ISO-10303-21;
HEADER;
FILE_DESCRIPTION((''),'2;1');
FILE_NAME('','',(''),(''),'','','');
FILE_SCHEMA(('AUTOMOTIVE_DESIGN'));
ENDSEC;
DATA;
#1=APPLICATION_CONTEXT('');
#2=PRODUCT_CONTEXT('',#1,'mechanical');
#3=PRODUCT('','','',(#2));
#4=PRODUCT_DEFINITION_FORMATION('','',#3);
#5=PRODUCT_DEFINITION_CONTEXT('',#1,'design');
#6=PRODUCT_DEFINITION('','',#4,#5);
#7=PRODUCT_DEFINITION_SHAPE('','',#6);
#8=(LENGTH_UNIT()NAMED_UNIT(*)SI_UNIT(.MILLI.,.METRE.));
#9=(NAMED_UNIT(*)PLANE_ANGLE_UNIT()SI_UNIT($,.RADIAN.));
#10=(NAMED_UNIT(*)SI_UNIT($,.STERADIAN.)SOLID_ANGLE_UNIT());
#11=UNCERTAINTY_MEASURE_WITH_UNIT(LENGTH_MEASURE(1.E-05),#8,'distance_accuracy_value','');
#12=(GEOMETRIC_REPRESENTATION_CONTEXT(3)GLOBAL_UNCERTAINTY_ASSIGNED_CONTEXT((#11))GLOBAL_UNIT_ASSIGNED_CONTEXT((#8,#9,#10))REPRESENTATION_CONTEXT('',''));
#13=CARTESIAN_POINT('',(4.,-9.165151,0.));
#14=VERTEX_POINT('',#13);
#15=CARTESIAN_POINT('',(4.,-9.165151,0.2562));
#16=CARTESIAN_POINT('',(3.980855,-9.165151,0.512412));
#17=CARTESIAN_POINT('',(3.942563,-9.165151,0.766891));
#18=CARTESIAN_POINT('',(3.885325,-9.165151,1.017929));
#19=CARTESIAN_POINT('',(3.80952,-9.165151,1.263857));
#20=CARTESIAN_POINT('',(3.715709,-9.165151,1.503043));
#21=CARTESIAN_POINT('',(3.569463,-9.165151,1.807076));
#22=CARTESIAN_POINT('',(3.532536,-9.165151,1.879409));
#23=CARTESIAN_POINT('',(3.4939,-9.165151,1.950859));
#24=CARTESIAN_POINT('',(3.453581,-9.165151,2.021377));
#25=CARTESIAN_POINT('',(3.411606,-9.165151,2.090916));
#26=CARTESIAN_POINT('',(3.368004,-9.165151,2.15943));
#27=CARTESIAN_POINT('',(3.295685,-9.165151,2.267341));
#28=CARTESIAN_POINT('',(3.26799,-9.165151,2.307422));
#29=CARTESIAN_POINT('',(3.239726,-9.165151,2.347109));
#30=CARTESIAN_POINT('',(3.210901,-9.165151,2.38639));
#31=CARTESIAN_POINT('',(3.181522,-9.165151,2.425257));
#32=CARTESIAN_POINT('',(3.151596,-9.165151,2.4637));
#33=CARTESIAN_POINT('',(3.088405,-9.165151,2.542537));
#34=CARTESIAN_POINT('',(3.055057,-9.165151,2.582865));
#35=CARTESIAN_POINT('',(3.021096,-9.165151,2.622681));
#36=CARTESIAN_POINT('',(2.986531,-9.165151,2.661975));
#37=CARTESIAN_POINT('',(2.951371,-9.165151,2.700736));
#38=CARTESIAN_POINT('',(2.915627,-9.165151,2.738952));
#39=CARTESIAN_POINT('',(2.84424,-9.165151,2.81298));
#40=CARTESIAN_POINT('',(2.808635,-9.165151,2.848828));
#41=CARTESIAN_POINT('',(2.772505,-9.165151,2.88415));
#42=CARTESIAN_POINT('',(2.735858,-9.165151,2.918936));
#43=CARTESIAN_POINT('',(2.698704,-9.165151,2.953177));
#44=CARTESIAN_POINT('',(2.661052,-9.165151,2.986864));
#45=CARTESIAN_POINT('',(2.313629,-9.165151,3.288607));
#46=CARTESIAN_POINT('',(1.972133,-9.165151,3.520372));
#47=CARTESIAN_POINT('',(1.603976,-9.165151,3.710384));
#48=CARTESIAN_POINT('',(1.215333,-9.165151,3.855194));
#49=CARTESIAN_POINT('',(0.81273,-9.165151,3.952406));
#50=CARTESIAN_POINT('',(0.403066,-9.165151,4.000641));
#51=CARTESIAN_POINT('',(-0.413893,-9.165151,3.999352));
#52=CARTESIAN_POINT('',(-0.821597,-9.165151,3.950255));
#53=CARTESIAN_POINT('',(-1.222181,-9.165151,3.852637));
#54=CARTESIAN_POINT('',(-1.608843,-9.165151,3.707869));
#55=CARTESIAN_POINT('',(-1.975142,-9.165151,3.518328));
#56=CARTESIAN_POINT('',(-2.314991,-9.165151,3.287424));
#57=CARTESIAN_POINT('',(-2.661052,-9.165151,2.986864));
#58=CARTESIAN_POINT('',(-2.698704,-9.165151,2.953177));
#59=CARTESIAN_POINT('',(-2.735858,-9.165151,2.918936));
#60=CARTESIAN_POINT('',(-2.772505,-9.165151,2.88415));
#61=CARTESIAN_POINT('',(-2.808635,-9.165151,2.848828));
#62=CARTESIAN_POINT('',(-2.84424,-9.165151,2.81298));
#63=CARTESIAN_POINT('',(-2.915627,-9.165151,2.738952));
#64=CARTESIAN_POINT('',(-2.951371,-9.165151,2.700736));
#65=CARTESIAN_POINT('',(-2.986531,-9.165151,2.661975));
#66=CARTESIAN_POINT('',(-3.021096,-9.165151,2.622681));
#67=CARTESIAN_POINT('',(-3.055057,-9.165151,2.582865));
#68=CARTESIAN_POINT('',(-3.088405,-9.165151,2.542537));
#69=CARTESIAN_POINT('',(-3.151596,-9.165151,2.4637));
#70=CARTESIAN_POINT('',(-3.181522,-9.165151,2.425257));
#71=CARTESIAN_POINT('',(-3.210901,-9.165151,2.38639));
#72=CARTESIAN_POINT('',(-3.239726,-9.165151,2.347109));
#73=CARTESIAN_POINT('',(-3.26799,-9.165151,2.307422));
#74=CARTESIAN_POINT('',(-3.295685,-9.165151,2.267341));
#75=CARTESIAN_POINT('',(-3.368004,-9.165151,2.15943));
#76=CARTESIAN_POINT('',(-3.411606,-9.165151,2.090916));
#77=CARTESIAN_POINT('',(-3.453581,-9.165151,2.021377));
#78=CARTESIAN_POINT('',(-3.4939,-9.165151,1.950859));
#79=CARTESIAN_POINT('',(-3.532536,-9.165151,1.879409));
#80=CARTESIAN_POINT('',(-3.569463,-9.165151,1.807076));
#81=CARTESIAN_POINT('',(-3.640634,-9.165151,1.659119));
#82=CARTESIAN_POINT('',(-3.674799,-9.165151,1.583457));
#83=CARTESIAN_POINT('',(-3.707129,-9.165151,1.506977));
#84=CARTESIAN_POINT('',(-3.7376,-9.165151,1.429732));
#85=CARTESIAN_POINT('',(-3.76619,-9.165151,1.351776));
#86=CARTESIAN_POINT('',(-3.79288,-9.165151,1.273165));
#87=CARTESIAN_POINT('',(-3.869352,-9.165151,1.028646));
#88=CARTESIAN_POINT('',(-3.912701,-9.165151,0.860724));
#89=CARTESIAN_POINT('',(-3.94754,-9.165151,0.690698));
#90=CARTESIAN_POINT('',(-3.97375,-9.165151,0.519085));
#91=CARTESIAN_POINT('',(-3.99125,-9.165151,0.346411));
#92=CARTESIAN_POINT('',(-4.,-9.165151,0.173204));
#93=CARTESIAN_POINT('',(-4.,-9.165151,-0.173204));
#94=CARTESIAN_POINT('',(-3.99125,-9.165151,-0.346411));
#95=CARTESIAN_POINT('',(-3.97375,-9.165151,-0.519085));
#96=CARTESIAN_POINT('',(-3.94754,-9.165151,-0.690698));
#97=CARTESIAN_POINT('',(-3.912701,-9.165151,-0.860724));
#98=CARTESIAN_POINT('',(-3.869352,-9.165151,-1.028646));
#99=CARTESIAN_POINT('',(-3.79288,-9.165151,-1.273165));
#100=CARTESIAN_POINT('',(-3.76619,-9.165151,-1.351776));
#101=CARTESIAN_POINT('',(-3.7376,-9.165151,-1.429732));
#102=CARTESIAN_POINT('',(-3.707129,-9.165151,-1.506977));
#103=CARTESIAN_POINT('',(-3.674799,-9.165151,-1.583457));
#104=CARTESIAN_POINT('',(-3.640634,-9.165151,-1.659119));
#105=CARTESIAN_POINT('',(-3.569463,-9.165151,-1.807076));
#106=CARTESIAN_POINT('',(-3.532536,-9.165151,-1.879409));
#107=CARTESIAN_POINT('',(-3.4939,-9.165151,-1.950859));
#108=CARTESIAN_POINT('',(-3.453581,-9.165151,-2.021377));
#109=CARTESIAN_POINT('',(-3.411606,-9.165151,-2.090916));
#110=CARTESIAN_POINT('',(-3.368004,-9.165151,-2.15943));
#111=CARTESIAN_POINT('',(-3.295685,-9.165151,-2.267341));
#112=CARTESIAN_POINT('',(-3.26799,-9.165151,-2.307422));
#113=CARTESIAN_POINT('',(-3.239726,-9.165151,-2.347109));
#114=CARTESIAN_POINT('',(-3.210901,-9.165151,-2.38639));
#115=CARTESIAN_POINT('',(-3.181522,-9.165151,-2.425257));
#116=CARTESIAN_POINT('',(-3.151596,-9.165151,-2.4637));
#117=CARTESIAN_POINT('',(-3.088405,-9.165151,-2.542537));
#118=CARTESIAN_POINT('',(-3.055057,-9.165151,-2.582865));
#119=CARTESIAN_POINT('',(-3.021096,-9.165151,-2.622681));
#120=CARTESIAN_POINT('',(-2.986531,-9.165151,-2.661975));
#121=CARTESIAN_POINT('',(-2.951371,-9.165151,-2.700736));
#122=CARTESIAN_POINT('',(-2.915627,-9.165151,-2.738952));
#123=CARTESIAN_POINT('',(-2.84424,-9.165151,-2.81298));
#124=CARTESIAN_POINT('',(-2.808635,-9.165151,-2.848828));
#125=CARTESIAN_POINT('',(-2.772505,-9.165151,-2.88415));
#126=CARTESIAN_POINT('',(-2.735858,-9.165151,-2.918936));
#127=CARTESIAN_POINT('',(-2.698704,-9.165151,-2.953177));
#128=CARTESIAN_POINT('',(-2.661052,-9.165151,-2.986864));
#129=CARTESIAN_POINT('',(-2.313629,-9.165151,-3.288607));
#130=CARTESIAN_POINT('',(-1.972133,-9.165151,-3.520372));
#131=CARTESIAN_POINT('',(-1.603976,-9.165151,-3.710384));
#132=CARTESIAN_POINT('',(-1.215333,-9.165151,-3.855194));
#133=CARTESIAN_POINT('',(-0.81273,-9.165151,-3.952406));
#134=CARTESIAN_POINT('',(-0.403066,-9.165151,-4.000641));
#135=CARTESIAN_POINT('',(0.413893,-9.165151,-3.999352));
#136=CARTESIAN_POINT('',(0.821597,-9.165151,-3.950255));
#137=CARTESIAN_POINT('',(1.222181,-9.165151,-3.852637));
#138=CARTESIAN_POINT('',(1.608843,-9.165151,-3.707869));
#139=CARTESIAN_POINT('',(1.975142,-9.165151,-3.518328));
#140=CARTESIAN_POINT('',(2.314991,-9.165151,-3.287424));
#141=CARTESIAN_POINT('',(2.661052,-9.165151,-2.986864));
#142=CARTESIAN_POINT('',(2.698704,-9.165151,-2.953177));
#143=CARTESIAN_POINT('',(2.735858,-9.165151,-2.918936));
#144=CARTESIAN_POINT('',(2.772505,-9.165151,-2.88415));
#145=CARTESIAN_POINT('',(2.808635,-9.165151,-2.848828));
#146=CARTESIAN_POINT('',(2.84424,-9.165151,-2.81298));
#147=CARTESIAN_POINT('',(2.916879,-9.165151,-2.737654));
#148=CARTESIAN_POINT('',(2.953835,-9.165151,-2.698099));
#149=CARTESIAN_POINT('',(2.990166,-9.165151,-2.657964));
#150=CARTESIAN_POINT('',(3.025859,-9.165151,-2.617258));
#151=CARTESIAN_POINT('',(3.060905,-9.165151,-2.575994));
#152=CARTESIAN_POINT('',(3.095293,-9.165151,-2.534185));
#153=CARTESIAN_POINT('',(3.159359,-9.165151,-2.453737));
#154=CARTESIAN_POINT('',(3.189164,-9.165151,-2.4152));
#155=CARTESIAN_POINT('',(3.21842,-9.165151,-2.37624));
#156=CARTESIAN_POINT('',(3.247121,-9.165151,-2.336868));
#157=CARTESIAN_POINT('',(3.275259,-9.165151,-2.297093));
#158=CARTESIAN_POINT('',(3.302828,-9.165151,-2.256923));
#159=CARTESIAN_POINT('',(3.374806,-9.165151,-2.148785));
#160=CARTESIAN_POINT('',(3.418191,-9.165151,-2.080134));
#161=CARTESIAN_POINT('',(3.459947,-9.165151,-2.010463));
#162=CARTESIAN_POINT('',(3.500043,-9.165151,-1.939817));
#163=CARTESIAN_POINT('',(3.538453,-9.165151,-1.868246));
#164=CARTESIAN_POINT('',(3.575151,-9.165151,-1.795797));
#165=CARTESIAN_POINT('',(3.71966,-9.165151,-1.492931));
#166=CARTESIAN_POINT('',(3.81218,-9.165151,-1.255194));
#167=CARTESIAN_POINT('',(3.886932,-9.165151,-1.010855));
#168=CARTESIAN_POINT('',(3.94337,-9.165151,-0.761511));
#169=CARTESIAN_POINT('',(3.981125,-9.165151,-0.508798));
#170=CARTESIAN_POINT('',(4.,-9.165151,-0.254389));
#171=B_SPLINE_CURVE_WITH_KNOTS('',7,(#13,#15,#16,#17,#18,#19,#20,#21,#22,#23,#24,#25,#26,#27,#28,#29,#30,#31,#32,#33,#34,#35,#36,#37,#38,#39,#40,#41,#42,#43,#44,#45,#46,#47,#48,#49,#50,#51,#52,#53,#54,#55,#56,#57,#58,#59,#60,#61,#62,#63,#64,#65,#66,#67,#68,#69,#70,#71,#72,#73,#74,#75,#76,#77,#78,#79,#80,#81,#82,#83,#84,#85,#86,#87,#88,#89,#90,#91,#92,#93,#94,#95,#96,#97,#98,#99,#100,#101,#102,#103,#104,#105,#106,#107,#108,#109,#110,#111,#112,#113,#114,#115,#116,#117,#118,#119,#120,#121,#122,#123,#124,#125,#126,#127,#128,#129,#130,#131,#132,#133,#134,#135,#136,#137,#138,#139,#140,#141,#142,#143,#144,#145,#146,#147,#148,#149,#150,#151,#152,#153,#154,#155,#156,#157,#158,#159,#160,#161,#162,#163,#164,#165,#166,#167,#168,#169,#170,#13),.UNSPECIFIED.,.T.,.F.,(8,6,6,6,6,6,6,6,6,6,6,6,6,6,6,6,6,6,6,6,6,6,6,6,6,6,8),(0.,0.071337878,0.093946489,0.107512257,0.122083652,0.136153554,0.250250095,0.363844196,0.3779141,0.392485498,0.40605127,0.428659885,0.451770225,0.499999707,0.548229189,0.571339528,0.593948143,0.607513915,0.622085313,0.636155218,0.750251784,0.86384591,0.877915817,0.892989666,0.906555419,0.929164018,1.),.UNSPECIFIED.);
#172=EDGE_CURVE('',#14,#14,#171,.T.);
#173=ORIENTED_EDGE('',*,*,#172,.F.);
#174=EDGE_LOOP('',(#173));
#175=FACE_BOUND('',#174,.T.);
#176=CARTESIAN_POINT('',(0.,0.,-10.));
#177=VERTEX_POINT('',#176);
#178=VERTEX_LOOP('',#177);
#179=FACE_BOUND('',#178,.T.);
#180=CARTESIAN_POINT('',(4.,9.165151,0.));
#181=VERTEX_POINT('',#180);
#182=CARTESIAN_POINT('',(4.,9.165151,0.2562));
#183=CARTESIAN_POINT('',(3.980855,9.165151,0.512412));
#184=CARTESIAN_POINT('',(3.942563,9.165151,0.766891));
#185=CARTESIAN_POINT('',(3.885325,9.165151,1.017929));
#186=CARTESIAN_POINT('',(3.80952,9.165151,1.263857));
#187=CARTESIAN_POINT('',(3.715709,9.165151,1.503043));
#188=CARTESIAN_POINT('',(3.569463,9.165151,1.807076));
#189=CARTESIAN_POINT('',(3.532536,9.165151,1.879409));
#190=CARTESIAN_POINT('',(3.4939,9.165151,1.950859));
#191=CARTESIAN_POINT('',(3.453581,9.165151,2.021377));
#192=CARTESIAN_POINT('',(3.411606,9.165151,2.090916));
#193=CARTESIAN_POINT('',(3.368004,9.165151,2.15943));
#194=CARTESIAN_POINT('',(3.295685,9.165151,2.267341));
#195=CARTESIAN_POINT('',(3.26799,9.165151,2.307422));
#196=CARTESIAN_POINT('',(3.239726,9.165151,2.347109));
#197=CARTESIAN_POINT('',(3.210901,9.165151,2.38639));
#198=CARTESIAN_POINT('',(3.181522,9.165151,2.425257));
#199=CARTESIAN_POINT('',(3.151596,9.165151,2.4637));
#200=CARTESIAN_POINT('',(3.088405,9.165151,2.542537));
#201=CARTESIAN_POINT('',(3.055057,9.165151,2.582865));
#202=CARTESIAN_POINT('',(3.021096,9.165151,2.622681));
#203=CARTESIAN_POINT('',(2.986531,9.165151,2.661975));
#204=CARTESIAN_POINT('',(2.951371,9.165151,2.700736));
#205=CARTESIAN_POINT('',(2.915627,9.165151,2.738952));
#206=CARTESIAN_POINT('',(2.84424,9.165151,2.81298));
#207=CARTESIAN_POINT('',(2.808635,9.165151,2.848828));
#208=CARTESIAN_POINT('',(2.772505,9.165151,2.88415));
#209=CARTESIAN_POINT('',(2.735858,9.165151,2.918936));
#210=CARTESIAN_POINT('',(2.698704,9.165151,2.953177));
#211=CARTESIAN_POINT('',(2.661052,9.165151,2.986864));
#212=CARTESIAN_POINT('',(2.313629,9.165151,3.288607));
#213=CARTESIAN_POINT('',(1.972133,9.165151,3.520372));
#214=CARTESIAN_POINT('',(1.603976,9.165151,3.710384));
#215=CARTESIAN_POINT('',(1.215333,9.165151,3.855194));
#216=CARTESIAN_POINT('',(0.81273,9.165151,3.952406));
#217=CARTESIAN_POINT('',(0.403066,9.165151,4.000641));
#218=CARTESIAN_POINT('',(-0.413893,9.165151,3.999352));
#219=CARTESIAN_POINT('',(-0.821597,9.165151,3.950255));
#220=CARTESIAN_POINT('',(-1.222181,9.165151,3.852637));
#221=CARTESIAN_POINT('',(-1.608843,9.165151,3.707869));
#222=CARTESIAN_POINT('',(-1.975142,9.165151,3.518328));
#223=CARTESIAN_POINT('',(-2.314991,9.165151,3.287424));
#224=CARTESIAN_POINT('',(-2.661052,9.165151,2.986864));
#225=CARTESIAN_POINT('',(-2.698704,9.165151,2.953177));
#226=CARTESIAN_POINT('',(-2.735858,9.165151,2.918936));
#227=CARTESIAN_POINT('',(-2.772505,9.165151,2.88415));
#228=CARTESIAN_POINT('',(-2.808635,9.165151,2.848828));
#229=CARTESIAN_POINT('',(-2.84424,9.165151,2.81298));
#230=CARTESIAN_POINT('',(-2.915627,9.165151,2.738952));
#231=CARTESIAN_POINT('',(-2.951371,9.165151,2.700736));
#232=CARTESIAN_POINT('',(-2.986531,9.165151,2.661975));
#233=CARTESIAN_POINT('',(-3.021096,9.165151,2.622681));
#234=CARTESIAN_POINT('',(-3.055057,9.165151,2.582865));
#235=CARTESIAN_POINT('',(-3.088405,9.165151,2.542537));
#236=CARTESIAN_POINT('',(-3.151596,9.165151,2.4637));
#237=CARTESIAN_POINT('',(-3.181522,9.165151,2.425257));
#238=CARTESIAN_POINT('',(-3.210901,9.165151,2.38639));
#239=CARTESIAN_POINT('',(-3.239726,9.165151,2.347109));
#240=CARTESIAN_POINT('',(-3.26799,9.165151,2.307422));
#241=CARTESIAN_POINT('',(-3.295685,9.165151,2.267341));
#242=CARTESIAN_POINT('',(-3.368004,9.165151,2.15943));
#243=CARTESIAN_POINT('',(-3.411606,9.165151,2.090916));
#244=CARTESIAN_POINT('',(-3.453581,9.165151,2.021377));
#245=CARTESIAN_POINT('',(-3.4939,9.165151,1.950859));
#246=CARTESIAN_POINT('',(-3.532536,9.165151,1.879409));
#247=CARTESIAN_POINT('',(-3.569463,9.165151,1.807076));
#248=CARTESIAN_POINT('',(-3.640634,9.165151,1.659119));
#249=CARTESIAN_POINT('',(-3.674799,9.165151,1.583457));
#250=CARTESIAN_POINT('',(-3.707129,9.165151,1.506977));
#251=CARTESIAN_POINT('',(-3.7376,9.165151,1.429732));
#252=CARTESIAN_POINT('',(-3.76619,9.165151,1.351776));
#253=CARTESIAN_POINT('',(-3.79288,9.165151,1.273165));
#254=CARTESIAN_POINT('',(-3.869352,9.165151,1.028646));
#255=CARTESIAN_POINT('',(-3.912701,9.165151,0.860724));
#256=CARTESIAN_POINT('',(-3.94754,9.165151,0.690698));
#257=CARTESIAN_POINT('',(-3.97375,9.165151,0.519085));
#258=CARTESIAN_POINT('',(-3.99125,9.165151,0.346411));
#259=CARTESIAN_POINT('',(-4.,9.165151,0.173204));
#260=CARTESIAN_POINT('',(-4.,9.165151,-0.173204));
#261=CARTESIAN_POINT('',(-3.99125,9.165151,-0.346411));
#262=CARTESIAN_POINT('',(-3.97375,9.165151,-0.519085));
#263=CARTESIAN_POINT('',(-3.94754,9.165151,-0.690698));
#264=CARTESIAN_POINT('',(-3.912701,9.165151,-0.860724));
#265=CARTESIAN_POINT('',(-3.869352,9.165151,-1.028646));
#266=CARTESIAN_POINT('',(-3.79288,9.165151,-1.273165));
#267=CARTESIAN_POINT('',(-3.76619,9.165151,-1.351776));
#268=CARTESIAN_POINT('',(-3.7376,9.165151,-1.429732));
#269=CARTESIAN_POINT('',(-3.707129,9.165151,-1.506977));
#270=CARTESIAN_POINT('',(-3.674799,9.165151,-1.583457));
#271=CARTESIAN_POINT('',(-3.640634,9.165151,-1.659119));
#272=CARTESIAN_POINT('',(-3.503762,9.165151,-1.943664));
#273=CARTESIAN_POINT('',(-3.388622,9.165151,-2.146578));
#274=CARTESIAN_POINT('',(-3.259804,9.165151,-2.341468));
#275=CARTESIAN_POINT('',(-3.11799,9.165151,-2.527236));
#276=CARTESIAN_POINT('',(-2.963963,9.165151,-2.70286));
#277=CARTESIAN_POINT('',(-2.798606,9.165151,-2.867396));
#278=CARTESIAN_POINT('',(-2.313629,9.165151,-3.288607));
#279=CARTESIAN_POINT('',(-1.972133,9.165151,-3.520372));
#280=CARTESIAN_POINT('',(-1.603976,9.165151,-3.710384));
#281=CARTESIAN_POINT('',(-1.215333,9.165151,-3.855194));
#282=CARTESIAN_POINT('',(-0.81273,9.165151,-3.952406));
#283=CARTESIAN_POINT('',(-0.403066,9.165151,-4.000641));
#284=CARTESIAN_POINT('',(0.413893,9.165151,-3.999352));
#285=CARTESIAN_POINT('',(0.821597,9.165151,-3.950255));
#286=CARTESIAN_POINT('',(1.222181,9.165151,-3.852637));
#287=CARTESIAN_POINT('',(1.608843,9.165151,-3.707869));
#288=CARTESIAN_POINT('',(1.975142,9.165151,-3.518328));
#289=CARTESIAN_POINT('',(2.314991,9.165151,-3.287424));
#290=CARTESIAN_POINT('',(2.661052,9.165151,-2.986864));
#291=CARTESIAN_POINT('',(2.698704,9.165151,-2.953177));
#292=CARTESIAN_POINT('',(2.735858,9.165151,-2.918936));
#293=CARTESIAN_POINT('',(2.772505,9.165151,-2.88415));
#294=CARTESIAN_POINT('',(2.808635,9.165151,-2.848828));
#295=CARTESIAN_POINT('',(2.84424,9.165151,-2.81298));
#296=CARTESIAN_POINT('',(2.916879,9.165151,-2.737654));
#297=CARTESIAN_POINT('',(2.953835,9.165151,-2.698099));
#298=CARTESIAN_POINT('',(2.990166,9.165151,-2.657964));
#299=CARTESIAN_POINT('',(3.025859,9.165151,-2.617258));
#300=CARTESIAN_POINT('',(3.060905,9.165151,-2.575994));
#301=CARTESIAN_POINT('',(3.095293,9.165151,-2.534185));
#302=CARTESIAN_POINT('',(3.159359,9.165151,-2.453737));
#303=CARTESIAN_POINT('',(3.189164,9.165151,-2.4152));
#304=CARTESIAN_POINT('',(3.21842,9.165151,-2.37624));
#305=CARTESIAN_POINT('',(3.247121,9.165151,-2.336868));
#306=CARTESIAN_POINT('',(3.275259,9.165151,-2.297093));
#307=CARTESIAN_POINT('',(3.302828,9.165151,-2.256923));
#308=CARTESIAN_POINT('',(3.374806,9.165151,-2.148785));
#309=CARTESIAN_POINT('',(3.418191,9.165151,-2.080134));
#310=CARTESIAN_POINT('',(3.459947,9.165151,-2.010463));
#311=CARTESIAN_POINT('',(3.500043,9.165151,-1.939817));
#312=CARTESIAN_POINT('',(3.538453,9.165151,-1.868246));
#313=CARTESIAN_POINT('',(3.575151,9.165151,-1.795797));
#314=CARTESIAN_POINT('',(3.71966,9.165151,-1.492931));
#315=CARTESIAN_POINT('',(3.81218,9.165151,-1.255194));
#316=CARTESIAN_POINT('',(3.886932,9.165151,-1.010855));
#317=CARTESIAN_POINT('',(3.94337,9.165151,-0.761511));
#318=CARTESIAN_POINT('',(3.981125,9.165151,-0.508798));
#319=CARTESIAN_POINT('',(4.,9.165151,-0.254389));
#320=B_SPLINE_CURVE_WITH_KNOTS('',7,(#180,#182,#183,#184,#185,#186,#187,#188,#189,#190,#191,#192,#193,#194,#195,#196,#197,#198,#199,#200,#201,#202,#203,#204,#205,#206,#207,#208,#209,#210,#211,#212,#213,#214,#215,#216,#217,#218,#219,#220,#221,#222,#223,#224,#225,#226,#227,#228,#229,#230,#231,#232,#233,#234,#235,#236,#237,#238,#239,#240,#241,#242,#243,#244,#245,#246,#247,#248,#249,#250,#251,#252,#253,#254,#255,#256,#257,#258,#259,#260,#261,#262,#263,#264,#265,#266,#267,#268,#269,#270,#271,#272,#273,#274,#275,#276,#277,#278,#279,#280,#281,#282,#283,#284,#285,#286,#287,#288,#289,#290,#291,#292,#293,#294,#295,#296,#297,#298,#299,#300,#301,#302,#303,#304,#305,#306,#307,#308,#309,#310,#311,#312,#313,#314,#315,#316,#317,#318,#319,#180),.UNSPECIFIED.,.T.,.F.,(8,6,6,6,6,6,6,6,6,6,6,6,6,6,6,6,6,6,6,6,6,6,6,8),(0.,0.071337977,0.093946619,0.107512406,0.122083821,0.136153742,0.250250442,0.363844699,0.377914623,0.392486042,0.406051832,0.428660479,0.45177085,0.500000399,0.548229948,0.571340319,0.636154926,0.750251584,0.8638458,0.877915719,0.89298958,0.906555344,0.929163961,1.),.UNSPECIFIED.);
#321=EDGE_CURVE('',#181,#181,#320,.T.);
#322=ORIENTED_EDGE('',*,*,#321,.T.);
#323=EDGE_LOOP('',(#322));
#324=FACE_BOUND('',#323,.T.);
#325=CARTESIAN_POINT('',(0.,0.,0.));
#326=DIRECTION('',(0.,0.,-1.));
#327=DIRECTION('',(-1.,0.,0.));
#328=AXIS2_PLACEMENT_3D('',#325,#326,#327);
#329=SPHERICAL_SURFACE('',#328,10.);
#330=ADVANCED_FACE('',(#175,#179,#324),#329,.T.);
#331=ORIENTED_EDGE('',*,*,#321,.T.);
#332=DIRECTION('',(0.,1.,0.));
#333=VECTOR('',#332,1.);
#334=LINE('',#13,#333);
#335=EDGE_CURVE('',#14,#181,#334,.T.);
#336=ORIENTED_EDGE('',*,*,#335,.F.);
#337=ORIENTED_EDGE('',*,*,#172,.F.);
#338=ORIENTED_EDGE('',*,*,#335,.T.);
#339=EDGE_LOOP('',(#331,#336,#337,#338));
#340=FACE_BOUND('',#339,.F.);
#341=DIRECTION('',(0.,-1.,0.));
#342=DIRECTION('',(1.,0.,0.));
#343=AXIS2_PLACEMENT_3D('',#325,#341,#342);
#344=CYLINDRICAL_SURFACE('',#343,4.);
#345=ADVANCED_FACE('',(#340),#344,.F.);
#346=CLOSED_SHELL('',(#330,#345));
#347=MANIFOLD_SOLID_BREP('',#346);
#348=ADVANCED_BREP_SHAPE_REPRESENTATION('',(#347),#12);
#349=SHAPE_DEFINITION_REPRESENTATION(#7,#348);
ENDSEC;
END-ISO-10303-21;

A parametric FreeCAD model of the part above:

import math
import FreeCAD as App
import Part
import Sketcher
from FreeCAD import Vector
Q = App.Units.Quantity

doc = App.newDocument("Part")
body = doc.addObject("PartDesign::Body", "Body")

sketch1 = doc.addObject("Sketcher::SketchObject", "Sketch")
body.addObject(sketch1)
sketch1.AttachmentSupport = (doc.XZ_Plane, [""])
sketch1.MapMode = "FlatFace"
sketch1.addGeometry([
    Part.LineSegment(Vector(0, -10, 0), Vector(0, 10, 0)),
    Part.ArcOfCircle(Part.Circle(Vector(0, 0, 0), Vector(0, 0, 1), 10), math.radians(90), math.radians(270)),
], False)
sketch1.addConstraint([
    Sketcher.Constraint("Coincident", 0, 1, 1, 2),
    Sketcher.Constraint("Coincident", 1, 1, 0, 2),
    Sketcher.Constraint("Vertical", 0),
    Sketcher.Constraint("Coincident", 1, 3, -1, 1),
    Sketcher.Constraint("PointOnObject", 0, 1, -2),
    Sketcher.Constraint("Radius", 1, Q("10 mm")),
])
revolution = doc.addObject("PartDesign::Revolution", "Revolution")
body.addObject(revolution)
revolution.Profile = sketch1
revolution.ReferenceAxis = (sketch1, ["V_Axis"])
revolution.Angle = 360

sketch2 = doc.addObject("Sketcher::SketchObject", "Sketch001")
body.addObject(sketch2)
sketch2.AttachmentSupport = (doc.XZ_Plane, [""])
sketch2.MapMode = "FlatFace"
sketch2.addGeometry(Part.Circle(Vector(0, 0, 0), Vector(0, 0, 1), 4), False)
sketch2.addConstraint([
    Sketcher.Constraint("Coincident", 0, 3, -1, 1),
    Sketcher.Constraint("Diameter", 0, Q("8 mm")),
])
pocket1 = doc.addObject("PartDesign::Pocket", "Pocket")
body.addObject(pocket1)
pocket1.Profile = sketch2
pocket1.Type = "ThroughAll"
pocket1.Midplane = True

doc.recompute()
